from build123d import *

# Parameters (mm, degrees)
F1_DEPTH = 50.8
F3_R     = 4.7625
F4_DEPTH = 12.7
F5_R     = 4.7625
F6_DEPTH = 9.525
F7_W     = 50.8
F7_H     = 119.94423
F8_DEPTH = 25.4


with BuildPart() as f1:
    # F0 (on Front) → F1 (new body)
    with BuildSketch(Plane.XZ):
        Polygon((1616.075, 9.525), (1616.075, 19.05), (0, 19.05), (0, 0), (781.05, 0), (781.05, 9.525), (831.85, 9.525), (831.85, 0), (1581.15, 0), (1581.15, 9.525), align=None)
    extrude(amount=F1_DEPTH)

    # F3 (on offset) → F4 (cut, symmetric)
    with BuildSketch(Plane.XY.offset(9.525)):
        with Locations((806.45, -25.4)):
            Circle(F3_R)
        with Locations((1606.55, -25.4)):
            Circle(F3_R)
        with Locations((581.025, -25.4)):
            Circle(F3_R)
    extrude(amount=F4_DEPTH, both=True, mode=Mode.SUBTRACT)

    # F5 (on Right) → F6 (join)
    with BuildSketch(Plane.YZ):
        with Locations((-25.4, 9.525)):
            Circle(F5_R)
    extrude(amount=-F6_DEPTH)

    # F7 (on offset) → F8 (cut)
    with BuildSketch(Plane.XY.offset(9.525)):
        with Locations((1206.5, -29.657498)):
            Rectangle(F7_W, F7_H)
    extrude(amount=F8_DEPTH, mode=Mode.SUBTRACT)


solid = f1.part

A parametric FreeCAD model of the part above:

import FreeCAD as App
import Part
import Sketcher
from FreeCAD import Vector
Q = App.Units.Quantity

doc = App.newDocument("Part")
body = doc.addObject("PartDesign::Body", "Body")

sketch1 = body.newObject("Sketcher::SketchObject", "Sketch")
sketch1.AttachmentSupport = (doc.getObject("XZ_Plane"), [""])
sketch1.MapMode = "FlatFace"
sketch1.addGeometry(Part.LineSegment(Vector(1616, 10, 0), Vector(1616, 19, 0)), False)
sketch1.addGeometry(Part.LineSegment(Vector(1616, 19, 0), Vector(0, 19, 0)), False)
sketch1.addGeometry(Part.LineSegment(Vector(0, 19, 0), Vector(0, 0, 0)), False)
sketch1.addGeometry(Part.LineSegment(Vector(0, 0, 0), Vector(781, 0, 0)), False)
sketch1.addGeometry(Part.LineSegment(Vector(781, 0, 0), Vector(781, 10, 0)), False)
sketch1.addGeometry(Part.LineSegment(Vector(781, 10, 0), Vector(832, 10, 0)), False)
sketch1.addGeometry(Part.LineSegment(Vector(832, 10, 0), Vector(832, 0, 0)), False)
sketch1.addGeometry(Part.LineSegment(Vector(832, 0, 0), Vector(1581, 0, 0)), False)
sketch1.addGeometry(Part.LineSegment(Vector(1581, 0, 0), Vector(1581, 10, 0)), False)
sketch1.addGeometry(Part.LineSegment(Vector(1581, 10, 0), Vector(1616, 10, 0)), False)
sketch1.addConstraint(Sketcher.Constraint("Coincident", 0, 2, 1, 1))
sketch1.addConstraint(Sketcher.Constraint("Coincident", 1, 2, 2, 1))
sketch1.addConstraint(Sketcher.Constraint("Coincident", 2, 2, 3, 1))
sketch1.addConstraint(Sketcher.Constraint("Coincident", 3, 2, 4, 1))
sketch1.addConstraint(Sketcher.Constraint("Coincident", 4, 2, 5, 1))
sketch1.addConstraint(Sketcher.Constraint("Coincident", 5, 2, 6, 1))
sketch1.addConstraint(Sketcher.Constraint("Coincident", 6, 2, 7, 1))
sketch1.addConstraint(Sketcher.Constraint("Coincident", 7, 2, 8, 1))
sketch1.addConstraint(Sketcher.Constraint("Coincident", 8, 2, 9, 1))
sketch1.addConstraint(Sketcher.Constraint("Coincident", 9, 2, 0, 1))
sketch1.addConstraint(Sketcher.Constraint("Vertical", 0))
sketch1.addConstraint(Sketcher.Constraint("Horizontal", 1))
sketch1.addConstraint(Sketcher.Constraint("Vertical", 2))
sketch1.addConstraint(Sketcher.Constraint("Horizontal", 3))
sketch1.addConstraint(Sketcher.Constraint("Vertical", 4))
sketch1.addConstraint(Sketcher.Constraint("Horizontal", 5))
sketch1.addConstraint(Sketcher.Constraint("Vertical", 6))
sketch1.addConstraint(Sketcher.Constraint("Horizontal", 7))
sketch1.addConstraint(Sketcher.Constraint("Vertical", 8))
sketch1.addConstraint(Sketcher.Constraint("Horizontal", 9))
sketch1.addConstraint(Sketcher.Constraint("Coincident", 2, 2, -1, 1))
sketch1.addConstraint(Sketcher.Constraint("PointOnObject", 6, 2, -1))
sketch1.addConstraint(Sketcher.Constraint("Horizontal", 5, 2, 8, 2))
sketch1.addConstraint(Sketcher.Constraint("Equal", 0, 4))
sketch1.addConstraint(Sketcher.Constraint("DistanceX", 5, 1, 5, 2, Q("2 in")))
sketch1.addConstraint(Sketcher.Constraint("DistanceX", 7, 1, 7, 2, Q("29.5 in")))
sketch1.addConstraint(Sketcher.Constraint("DistanceX", 3, 1, 3, 2, Q("30.75 in")))
sketch1.addConstraint(Sketcher.Constraint("DistanceY", 2, 2, 2, 1, Q("0.75 in")))
sketch1.addConstraint(Sketcher.Constraint("DistanceX", 1, 2, 1, 1, Q("63.625 in")))
pad1 = body.newObject("PartDesign::Pad", "Pad")
pad1.Profile = sketch1
pad1.Length = Q("2 in")

sketch2 = body.newObject("Sketcher::SketchObject", "Sketch001")
sketch2.AttachmentSupport = (doc.getObject("XY_Plane"), [""])
sketch2.MapMode = "FlatFace"
sketch2.AttachmentOffset = App.Placement(Vector(0, 0, 0.375 * 25.4), App.Rotation())
sketch2.addGeometry(Part.Circle(Vector(806.5, -25.4, 0), Vector(0, 0, 1), 4.8), False)
sketch2.addGeometry(Part.Circle(Vector(1606.5, -25.4, 0), Vector(0, 0, 1), 4.8), False)
sketch2.addGeometry(Part.Circle(Vector(581, -25.4, 0), Vector(0, 0, 1), 4.8), False)
sketch2.addConstraint(Sketcher.Constraint("Equal", 0, 1))
sketch2.addConstraint(Sketcher.Constraint("Equal", 1, 2))
sketch2.addConstraint(Sketcher.Constraint("Horizontal", 0, 3, 1, 3))
sketch2.addConstraint(Sketcher.Constraint("Horizontal", 1, 3, 2, 3))
sketch2.addConstraint(Sketcher.Constraint("Diameter", 0, Q("0.375 in")))
sketch2.addConstraint(Sketcher.Constraint("DistanceY", 0, 3, -1, 1, Q("1 in")))
sketch2.addConstraint(Sketcher.Constraint("DistanceX", 0, 3, 1, 3, Q("31.5 in")))
sketch2.addConstraint(Sketcher.Constraint("DistanceX", -1, 1, 0, 3, Q("31.75 in")))
sketch2.addConstraint(Sketcher.Constraint("DistanceX", -1, 1, 2, 3, Q("22.875 in")))
pocket1 = body.newObject("PartDesign::Pocket", "Pocket")
pocket1.Profile = sketch2
pocket1.Length = Q("1 in")
pocket1.Midplane = True

sketch3 = body.newObject("Sketcher::SketchObject", "Sketch002")
sketch3.AttachmentSupport = (doc.getObject("YZ_Plane"), [""])
sketch3.MapMode = "FlatFace"
sketch3.addGeometry(Part.Circle(Vector(-25.4, 9.5, 0), Vector(0, 0, 1), 4.8), False)
sketch3.addConstraint(Sketcher.Constraint("Diameter", 0, Q("0.375 in")))
sketch3.addConstraint(Sketcher.Constraint("DistanceX", 0, 3, -1, 1, Q("1 in")))
sketch3.addConstraint(Sketcher.Constraint("DistanceY", -1, 1, 0, 3, Q("0.375 in")))
pad2 = body.newObject("PartDesign::Pad", "Pad001")
pad2.Profile = sketch3
pad2.Length = Q("0.375 in")
pad2.Reversed = True

sketch4 = body.newObject("Sketcher::SketchObject", "Sketch003")
sketch4.AttachmentSupport = (doc.getObject("XY_Plane"), [""])
sketch4.MapMode = "FlatFace"
sketch4.AttachmentOffset = App.Placement(Vector(0, 0, 0.375 * 25.4), App.Rotation())
sketch4.addGeometry(Part.LineSegment(Vector(1181, 30, 0), Vector(1181, -90, 0)), False)
sketch4.addGeometry(Part.LineSegment(Vector(1181, -90, 0), Vector(1232, -90, 0)), False)
sketch4.addGeometry(Part.LineSegment(Vector(1232, -90, 0), Vector(1232, 30, 0)), False)
sketch4.addGeometry(Part.LineSegment(Vector(1232, 30, 0), Vector(1181, 30, 0)), False)
sketch4.addConstraint(Sketcher.Constraint("Coincident", 0, 2, 1, 1))
sketch4.addConstraint(Sketcher.Constraint("Coincident", 1, 2, 2, 1))
sketch4.addConstraint(Sketcher.Constraint("Coincident", 2, 2, 3, 1))
sketch4.addConstraint(Sketcher.Constraint("Coincident", 3, 2, 0, 1))
sketch4.addConstraint(Sketcher.Constraint("Vertical", 0))
sketch4.addConstraint(Sketcher.Constraint("Horizontal", 1))
sketch4.addConstraint(Sketcher.Constraint("Vertical", 2))
sketch4.addConstraint(Sketcher.Constraint("Horizontal", 3))
sketch4.addConstraint(Sketcher.Constraint("DistanceX", 1, 1, 1, 2, Q("2 in")))
sketch4.addConstraint(Sketcher.Constraint("DistanceX", -1, 1, 0, 2, Q("46.5 in")))
sketch4.addConstraint(Sketcher.Constraint("DistanceY", 0, 2, 0, 1, 119.94423))
sketch4.addConstraint(Sketcher.Constraint("DistanceY", 0, 2, -1, 1, 89.629613))
pocket2 = body.newObject("PartDesign::Pocket", "Pocket001")
pocket2.Profile = sketch4
pocket2.Length = Q("1 in")
pocket2.Reversed = True

doc.recompute()
